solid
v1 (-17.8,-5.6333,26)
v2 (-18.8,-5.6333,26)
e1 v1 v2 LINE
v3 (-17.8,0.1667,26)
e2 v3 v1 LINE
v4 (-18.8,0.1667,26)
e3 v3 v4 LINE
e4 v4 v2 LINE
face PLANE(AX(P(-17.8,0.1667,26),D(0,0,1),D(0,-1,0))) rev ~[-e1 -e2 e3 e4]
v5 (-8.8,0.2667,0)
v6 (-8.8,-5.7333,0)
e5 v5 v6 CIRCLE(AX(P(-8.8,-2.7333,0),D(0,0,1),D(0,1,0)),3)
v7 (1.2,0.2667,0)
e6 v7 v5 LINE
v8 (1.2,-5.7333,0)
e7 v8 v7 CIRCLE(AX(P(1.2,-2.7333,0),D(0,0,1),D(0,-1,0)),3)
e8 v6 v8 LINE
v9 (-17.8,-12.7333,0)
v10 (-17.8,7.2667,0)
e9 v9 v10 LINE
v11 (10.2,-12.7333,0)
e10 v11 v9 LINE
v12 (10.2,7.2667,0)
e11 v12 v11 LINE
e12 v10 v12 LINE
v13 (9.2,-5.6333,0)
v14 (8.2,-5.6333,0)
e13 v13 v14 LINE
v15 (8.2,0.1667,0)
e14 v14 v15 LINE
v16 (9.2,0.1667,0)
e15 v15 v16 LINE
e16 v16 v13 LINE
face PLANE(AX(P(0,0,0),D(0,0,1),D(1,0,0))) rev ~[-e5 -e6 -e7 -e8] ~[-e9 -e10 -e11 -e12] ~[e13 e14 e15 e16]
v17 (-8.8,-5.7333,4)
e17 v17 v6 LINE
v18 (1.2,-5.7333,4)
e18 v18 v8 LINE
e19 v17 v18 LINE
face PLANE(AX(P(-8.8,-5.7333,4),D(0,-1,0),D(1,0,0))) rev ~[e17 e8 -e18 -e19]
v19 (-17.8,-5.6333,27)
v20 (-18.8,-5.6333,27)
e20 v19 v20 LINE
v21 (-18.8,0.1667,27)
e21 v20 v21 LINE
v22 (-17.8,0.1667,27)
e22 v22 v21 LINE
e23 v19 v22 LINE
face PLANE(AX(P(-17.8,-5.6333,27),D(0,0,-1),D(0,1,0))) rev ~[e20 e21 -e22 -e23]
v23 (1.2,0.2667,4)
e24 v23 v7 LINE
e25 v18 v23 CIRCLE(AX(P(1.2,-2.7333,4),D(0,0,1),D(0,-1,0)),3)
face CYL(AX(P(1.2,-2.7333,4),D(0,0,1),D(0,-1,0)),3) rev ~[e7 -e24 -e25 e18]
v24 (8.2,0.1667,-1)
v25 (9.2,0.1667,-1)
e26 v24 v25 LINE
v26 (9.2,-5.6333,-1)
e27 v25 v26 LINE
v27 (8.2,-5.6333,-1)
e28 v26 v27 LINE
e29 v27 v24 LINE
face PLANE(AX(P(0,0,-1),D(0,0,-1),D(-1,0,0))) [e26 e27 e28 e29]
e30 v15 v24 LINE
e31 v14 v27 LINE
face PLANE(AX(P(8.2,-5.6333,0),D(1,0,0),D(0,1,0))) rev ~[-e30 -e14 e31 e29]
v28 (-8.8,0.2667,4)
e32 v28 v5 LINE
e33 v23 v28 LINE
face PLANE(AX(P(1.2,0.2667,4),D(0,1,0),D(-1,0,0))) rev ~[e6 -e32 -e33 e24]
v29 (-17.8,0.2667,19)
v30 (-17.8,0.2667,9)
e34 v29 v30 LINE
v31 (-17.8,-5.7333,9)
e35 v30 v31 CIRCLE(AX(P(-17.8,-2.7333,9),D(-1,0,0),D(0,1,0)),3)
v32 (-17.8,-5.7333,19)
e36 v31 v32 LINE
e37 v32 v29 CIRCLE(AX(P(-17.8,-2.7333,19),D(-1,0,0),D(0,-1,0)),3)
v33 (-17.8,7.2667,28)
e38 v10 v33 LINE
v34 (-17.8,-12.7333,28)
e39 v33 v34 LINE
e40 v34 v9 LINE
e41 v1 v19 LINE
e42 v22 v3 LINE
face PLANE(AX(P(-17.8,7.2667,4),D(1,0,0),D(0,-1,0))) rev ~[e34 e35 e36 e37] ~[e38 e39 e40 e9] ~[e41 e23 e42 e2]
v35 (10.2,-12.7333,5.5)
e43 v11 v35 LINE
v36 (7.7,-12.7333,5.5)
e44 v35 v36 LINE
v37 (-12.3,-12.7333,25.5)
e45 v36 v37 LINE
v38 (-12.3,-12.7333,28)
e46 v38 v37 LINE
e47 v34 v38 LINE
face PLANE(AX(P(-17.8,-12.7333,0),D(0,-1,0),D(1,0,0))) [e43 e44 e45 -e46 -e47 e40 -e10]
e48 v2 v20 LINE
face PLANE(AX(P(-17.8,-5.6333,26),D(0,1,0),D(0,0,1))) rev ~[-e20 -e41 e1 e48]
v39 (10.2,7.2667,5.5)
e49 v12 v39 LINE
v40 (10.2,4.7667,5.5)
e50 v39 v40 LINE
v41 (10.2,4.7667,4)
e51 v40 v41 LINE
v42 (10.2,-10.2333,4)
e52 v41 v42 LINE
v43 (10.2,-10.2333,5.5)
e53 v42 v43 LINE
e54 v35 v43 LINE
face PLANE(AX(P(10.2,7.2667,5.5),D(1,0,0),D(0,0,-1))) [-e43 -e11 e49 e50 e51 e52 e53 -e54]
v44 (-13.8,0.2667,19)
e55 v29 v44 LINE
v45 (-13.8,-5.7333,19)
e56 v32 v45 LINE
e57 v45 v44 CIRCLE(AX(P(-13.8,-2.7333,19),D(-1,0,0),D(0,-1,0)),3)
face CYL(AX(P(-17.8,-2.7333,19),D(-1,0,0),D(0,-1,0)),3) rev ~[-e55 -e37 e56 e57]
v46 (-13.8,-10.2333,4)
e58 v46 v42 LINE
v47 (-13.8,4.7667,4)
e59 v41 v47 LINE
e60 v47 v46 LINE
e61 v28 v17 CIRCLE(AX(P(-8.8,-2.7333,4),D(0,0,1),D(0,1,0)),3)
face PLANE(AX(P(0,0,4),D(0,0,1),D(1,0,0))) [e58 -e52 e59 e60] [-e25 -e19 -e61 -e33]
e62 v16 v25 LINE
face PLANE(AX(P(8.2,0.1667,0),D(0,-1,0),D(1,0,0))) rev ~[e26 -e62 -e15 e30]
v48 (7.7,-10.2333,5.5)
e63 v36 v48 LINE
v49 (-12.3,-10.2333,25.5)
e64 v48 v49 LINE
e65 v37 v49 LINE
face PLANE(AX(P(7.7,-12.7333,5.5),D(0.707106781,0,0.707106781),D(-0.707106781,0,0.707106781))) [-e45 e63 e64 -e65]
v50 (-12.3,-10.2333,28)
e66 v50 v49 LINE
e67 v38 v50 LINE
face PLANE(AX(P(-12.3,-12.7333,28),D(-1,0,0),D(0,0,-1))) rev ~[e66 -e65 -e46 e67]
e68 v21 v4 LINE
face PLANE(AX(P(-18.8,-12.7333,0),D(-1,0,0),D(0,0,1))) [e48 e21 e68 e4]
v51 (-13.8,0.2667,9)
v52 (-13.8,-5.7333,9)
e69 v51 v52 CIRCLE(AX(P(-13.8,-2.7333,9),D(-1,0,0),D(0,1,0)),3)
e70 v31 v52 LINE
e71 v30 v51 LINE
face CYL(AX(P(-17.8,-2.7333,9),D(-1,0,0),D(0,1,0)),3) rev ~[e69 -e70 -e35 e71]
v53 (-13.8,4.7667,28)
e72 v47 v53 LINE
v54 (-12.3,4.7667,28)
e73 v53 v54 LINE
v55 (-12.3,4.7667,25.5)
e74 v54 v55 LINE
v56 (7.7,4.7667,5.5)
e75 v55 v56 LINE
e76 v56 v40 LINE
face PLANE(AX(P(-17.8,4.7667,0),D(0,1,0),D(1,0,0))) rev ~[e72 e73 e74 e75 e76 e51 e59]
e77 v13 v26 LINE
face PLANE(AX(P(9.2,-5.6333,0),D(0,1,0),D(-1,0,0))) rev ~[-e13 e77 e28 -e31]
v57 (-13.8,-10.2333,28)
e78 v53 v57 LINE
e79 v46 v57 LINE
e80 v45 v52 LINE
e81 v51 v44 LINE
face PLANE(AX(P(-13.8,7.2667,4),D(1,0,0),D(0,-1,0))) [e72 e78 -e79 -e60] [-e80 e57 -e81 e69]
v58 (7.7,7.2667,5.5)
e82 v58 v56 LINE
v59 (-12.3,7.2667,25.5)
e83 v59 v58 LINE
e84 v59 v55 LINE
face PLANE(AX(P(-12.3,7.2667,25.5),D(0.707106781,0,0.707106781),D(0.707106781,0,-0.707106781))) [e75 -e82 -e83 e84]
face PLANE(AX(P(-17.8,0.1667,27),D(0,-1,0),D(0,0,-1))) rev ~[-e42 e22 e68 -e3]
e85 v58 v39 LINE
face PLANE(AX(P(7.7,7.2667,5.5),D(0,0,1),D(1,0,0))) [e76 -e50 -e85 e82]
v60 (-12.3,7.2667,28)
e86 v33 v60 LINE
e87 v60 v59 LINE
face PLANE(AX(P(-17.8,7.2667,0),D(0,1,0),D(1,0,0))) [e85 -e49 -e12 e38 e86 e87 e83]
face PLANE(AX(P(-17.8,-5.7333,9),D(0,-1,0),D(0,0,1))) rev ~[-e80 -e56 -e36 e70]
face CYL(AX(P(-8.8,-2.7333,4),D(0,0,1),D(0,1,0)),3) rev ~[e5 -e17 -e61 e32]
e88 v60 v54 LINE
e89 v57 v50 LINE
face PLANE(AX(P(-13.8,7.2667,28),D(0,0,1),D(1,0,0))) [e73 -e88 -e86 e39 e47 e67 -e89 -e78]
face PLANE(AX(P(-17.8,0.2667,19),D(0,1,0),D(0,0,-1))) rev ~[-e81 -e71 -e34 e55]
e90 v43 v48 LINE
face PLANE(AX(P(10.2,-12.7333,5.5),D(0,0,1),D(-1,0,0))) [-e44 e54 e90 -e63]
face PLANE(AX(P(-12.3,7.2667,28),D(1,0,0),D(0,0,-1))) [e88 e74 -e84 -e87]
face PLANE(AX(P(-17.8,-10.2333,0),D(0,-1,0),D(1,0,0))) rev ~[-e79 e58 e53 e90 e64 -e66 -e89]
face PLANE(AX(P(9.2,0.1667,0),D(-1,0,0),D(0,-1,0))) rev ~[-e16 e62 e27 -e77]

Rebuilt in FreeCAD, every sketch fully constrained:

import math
import FreeCAD as App
import Part
import Sketcher
from FreeCAD import Vector

doc = App.newDocument("Part")
body = doc.addObject("PartDesign::Body", "Body")

# Sketch on XY plane
sketch1 = doc.addObject("Sketcher::SketchObject", "Sketch")
body.addObject(sketch1)
sketch1.AttachmentSupport = (doc.XY_Plane, [""])
sketch1.MapMode = "FlatFace"
sketch1.addGeometry([
    Part.LineSegment(Vector(10, 7, 0), Vector(-18, 7, 0)),
    Part.LineSegment(Vector(-18, 7, 0), Vector(-18, -13, 0)),
    Part.LineSegment(Vector(-18, -13, 0), Vector(10, -13, 0)),
    Part.LineSegment(Vector(10, -13, 0), Vector(10, 7, 0)),
], False)
sketch1.addConstraint([
    Sketcher.Constraint("Coincident", 0, 2, 1, 1),
    Sketcher.Constraint("Coincident", 1, 2, 2, 1),
    Sketcher.Constraint("Coincident", 2, 2, 3, 1),
    Sketcher.Constraint("Coincident", 3, 2, 0, 1),
    Sketcher.Constraint("Horizontal", 0),
    Sketcher.Constraint("Vertical", 1),
    Sketcher.Constraint("Horizontal", 2),
    Sketcher.Constraint("Vertical", 3),
    Sketcher.Constraint("DistanceX", 0, 2, 0, 1, 28.0),
    Sketcher.Constraint("DistanceY", 1, 2, 1, 1, 20.0),
    Sketcher.Constraint("DistanceX", 0, 2, -1, 1, 17.8),
    Sketcher.Constraint("DistanceY", -1, 1, 0, 2, 7.2667),
])
pad1 = doc.addObject("PartDesign::Pad", "Pad")
body.addObject(pad1)
pad1.Profile = sketch1
pad1.Length = 4

# Sketch on XY plane
sketch2 = doc.addObject("Sketcher::SketchObject", "Sketch001")
body.addObject(sketch2)
sketch2.AttachmentSupport = (doc.XY_Plane, [""])
sketch2.MapMode = "FlatFace"
sketch2.AttachmentOffset = App.Placement(Vector(0, 0, 4), App.Rotation())
sketch2.addGeometry([
    Part.ArcOfCircle(Part.Circle(Vector(-8.8, -2.7, 0), Vector(0, 0, 1), 3), math.radians(90), math.radians(270)),
    Part.LineSegment(Vector(-8.8, -5.7, 0), Vector(1.2, -5.7, 0)),
    Part.ArcOfCircle(Part.Circle(Vector(1.2, -2.7, 0), Vector(0, 0, 1), 3), math.radians(-90), math.radians(90)),
    Part.LineSegment(Vector(1.2, 0.3, 0), Vector(-8.8, 0.3, 0)),
], False)
sketch2.addConstraint([
    Sketcher.Constraint("Tangent", 0, 2, 1, 1),
    Sketcher.Constraint("Tangent", 1, 2, 2, 1),
    Sketcher.Constraint("Tangent", 2, 2, 3, 1),
    Sketcher.Constraint("Tangent", 3, 2, 0, 1),
    Sketcher.Constraint("Horizontal", 1),
    Sketcher.Constraint("Horizontal", 3),
    Sketcher.Constraint("Radius", 0, 3.0),
    Sketcher.Constraint("DistanceX", 1, 1, 1, 2, 10.0),
    Sketcher.Constraint("DistanceX", 0, 3, -1, 1, 8.8),
    Sketcher.Constraint("DistanceY", 0, 3, -1, 1, 2.7333),
])
pocket1 = doc.addObject("PartDesign::Pocket", "Pocket")
body.addObject(pocket1)
pocket1.Profile = sketch2
pocket1.Length = 30

# Sketch on XY plane
sketch3 = doc.addObject("Sketcher::SketchObject", "Sketch002")
body.addObject(sketch3)
sketch3.AttachmentSupport = (doc.XY_Plane, [""])
sketch3.MapMode = "FlatFace"
sketch3.AttachmentOffset = App.Placement(Vector(0, 0, 4), App.Rotation())
sketch3.addGeometry([
    Part.LineSegment(Vector(-13.8, -12.7, 0), Vector(-13.8, 7.3, 0)),
    Part.LineSegment(Vector(-13.8, 7.3, 0), Vector(-17.8, 7.3, 0)),
    Part.LineSegment(Vector(-17.8, 7.3, 0), Vector(-17.8, -12.7, 0)),
    Part.LineSegment(Vector(-17.8, -12.7, 0), Vector(-13.8, -12.7, 0)),
], False)
sketch3.addConstraint([
    Sketcher.Constraint("Coincident", 0, 2, 1, 1),
    Sketcher.Constraint("Coincident", 1, 2, 2, 1),
    Sketcher.Constraint("Coincident", 2, 2, 3, 1),
    Sketcher.Constraint("Coincident", 3, 2, 0, 1),
    Sketcher.Constraint("Vertical", 0),
    Sketcher.Constraint("Horizontal", 1),
    Sketcher.Constraint("Vertical", 2),
    Sketcher.Constraint("Horizontal", 3),
    Sketcher.Constraint("DistanceX", 1, 2, 1, 1, 4.0),
    Sketcher.Constraint("DistanceY", 0, 1, 0, 2, 20.0),
    Sketcher.Constraint("DistanceX", 0, 2, -1, 1, 13.8),
    Sketcher.Constraint("DistanceY", -1, 1, 0, 2, 7.2667),
])
pad2 = doc.addObject("PartDesign::Pad", "Pad001")
body.addObject(pad2)
pad2.Profile = sketch3
pad2.Length = 24

# Sketch on YZ plane
sketch4 = doc.addObject("Sketcher::SketchObject", "Sketch003")
body.addObject(sketch4)
sketch4.AttachmentSupport = (doc.YZ_Plane, [""])
sketch4.MapMode = "FlatFace"
sketch4.AttachmentOffset = App.Placement(Vector(0, 0, -17.8), App.Rotation())
sketch4.addGeometry([
    Part.ArcOfCircle(Part.Circle(Vector(-2.7, 9, 0), Vector(0, 0, 1), 3), math.radians(180), math.radians(360)),
    Part.LineSegment(Vector(-5.7, 9, 0), Vector(-5.7, 19, 0)),
    Part.ArcOfCircle(Part.Circle(Vector(-2.7, 19, 0), Vector(0, 0, 1), 3), math.radians(0), math.radians(180)),
    Part.LineSegment(Vector(0.3, 19, 0), Vector(0.3, 9, 0)),
], False)
sketch4.addConstraint([
    Sketcher.Constraint("Tangent", 0, 1, 1, 1),
    Sketcher.Constraint("Tangent", 1, 2, 2, 2),
    Sketcher.Constraint("Tangent", 2, 1, 3, 1),
    Sketcher.Constraint("Tangent", 3, 2, 0, 2),
    Sketcher.Constraint("Vertical", 1),
    Sketcher.Constraint("Vertical", 3),
    Sketcher.Constraint("Radius", 0, 3.0),
    Sketcher.Constraint("DistanceY", 1, 1, 1, 2, 10.0),
    Sketcher.Constraint("DistanceY", -1, 1, 0, 3, 9.0),
    Sketcher.Constraint("DistanceX", 0, 3, -1, 1, 2.7333),
])
pocket2 = doc.addObject("PartDesign::Pocket", "Pocket001")
body.addObject(pocket2)
pocket2.Profile = sketch4
pocket2.Length = 24
pocket2.Reversed = True

# Sketch on YZ plane
sketch5 = doc.addObject("Sketcher::SketchObject", "Sketch004")
body.addObject(sketch5)
sketch5.AttachmentSupport = (doc.YZ_Plane, [""])
sketch5.MapMode = "FlatFace"
sketch5.AttachmentOffset = App.Placement(Vector(0, 0, -17.8), App.Rotation())
sketch5.addGeometry([
    Part.LineSegment(Vector(-5.6, 27, 0), Vector(0.2, 27, 0)),
    Part.LineSegment(Vector(0.2, 27, 0), Vector(0.2, 26, 0)),
    Part.LineSegment(Vector(0.2, 26, 0), Vector(-5.6, 26, 0)),
    Part.LineSegment(Vector(-5.6, 26, 0), Vector(-5.6, 27, 0)),
], False)
sketch5.addConstraint([
    Sketcher.Constraint("Coincident", 0, 2, 1, 1),
    Sketcher.Constraint("Coincident", 1, 2, 2, 1),
    Sketcher.Constraint("Coincident", 2, 2, 3, 1),
    Sketcher.Constraint("Coincident", 3, 2, 0, 1),
    Sketcher.Constraint("Horizontal", 0),
    Sketcher.Constraint("Vertical", 1),
    Sketcher.Constraint("Horizontal", 2),
    Sketcher.Constraint("Vertical", 3),
    Sketcher.Constraint("DistanceY", 1, 2, 1, 1, 1.0),
    Sketcher.Constraint("DistanceX", 0, 1, 0, 2, 5.8),
    Sketcher.Constraint("DistanceY", -1, 1, 0, 2, 27.0),
    Sketcher.Constraint("DistanceX", -1, 1, 0, 2, 0.1667),
])
pad3 = doc.addObject("PartDesign::Pad", "Pad002")
body.addObject(pad3)
pad3.Profile = sketch5
pad3.Length = 1
pad3.Reversed = True

# Sketch on XY plane
sketch6 = doc.addObject("Sketcher::SketchObject", "Sketch005")
body.addObject(sketch6)
sketch6.AttachmentSupport = (doc.XY_Plane, [""])
sketch6.MapMode = "FlatFace"
sketch6.addGeometry([
    Part.LineSegment(Vector(9.2, 0.2, 0), Vector(9.2, -5.6, 0)),
    Part.LineSegment(Vector(9.2, -5.6, 0), Vector(8.2, -5.6, 0)),
    Part.LineSegment(Vector(8.2, -5.6, 0), Vector(8.2, 0.2, 0)),
    Part.LineSegment(Vector(8.2, 0.2, 0), Vector(9.2, 0.2, 0)),
], False)
sketch6.addConstraint([
    Sketcher.Constraint("Coincident", 0, 2, 1, 1),
    Sketcher.Constraint("Coincident", 1, 2, 2, 1),
    Sketcher.Constraint("Coincident", 2, 2, 3, 1),
    Sketcher.Constraint("Coincident", 3, 2, 0, 1),
    Sketcher.Constraint("Vertical", 0),
    Sketcher.Constraint("Horizontal", 1),
    Sketcher.Constraint("Vertical", 2),
    Sketcher.Constraint("Horizontal", 3),
    Sketcher.Constraint("DistanceX", 1, 2, 1, 1, 1.0),
    Sketcher.Constraint("DistanceY", 0, 2, 0, 1, 5.8),
    Sketcher.Constraint("DistanceX", -1, 1, 0, 2, 9.2),
    Sketcher.Constraint("DistanceY", 0, 2, -1, 1, 5.6333),
])
pad4 = doc.addObject("PartDesign::Pad", "Pad003")
body.addObject(pad4)
pad4.Profile = sketch6
pad4.Length = 1
pad4.Reversed = True

# Sketch on XZ plane
sketch7 = doc.addObject("Sketcher::SketchObject", "Sketch006")
body.addObject(sketch7)
sketch7.AttachmentSupport = (doc.XZ_Plane, [""])
sketch7.MapMode = "FlatFace"
sketch7.AttachmentOffset = App.Placement(Vector(0, 0, 12.7333), App.Rotation())
sketch7.addGeometry([
    Part.LineSegment(Vector(-13.8, 4, 0), Vector(10.2, 4, 0)),  # 0
    Part.LineSegment(Vector(10.2, 4, 0), Vector(10.2, 5.5, 0)),  # 1
    Part.LineSegment(Vector(10.2, 5.5, 0), Vector(7.7, 5.5, 0)),  # 2
    Part.LineSegment(Vector(7.7, 5.5, 0), Vector(-12.3, 25.5, 0)),  # 3
    Part.LineSegment(Vector(-12.3, 25.5, 0), Vector(-12.3, 28, 0)),  # 4
    Part.LineSegment(Vector(-12.3, 28, 0), Vector(-13.8, 28, 0)),  # 5
    Part.LineSegment(Vector(-13.8, 28, 0), Vector(-13.8, 4, 0)),  # 6
], False)
sketch7.addConstraint([
    Sketcher.Constraint("Coincident", 0, 2, 1, 1),
    Sketcher.Constraint("Coincident", 1, 2, 2, 1),
    Sketcher.Constraint("Coincident", 2, 2, 3, 1),
    Sketcher.Constraint("Coincident", 3, 2, 4, 1),
    Sketcher.Constraint("Coincident", 4, 2, 5, 1),
    Sketcher.Constraint("Coincident", 5, 2, 6, 1),
    Sketcher.Constraint("Coincident", 6, 2, 0, 1),
    Sketcher.Constraint("Horizontal", 0),
    Sketcher.Constraint("Vertical", 1),
    Sketcher.Constraint("Horizontal", 2),
    Sketcher.Constraint("Vertical", 4),
    Sketcher.Constraint("Horizontal", 5),
    Sketcher.Constraint("Vertical", 6),
    Sketcher.Constraint("Equal", 5, 1),
    Sketcher.Constraint("Equal", 2, 4),
    Sketcher.Constraint("Equal", 0, 6),
    Sketcher.Constraint("DistanceX", 2, 2, 2, 1, 2.5),
    Sketcher.Constraint("DistanceX", 5, 2, 5, 1, 1.5),
    Sketcher.Constraint("DistanceX", 0, 1, 0, 2, 24.0),
    Sketcher.Constraint("DistanceY", -1, 1, 0, 2, 4.0),
    Sketcher.Constraint("DistanceX", -1, 1, 0, 2, 10.2),
])
pad5 = doc.addObject("PartDesign::Pad", "Pad004")
body.addObject(pad5)
pad5.Profile = sketch7
pad5.Length = 2.5
pad5.Reversed = True

# Sketch on XZ plane
sketch8 = doc.addObject("Sketcher::SketchObject", "Sketch007")
body.addObject(sketch8)
sketch8.AttachmentSupport = (doc.XZ_Plane, [""])
sketch8.MapMode = "FlatFace"
sketch8.AttachmentOffset = App.Placement(Vector(0, 0, -7.2667), App.Rotation())
sketch8.addGeometry([
    Part.LineSegment(Vector(10.2, 5.5, 0), Vector(10.2, 4, 0)),  # 0
    Part.LineSegment(Vector(10.2, 4, 0), Vector(-13.8, 4, 0)),  # 1
    Part.LineSegment(Vector(-13.8, 4, 0), Vector(-13.8, 28, 0)),  # 2
    Part.LineSegment(Vector(-13.8, 28, 0), Vector(-12.3, 28, 0)),  # 3
    Part.LineSegment(Vector(-12.3, 28, 0), Vector(-12.3, 25.5, 0)),  # 4
    Part.LineSegment(Vector(-12.3, 25.5, 0), Vector(7.7, 5.5, 0)),  # 5
    Part.LineSegment(Vector(7.7, 5.5, 0), Vector(10.2, 5.5, 0)),  # 6
], False)
sketch8.addConstraint([
    Sketcher.Constraint("Coincident", 0, 2, 1, 1),
    Sketcher.Constraint("Coincident", 1, 2, 2, 1),
    Sketcher.Constraint("Coincident", 2, 2, 3, 1),
    Sketcher.Constraint("Coincident", 3, 2, 4, 1),
    Sketcher.Constraint("Coincident", 4, 2, 5, 1),
    Sketcher.Constraint("Coincident", 5, 2, 6, 1),
    Sketcher.Constraint("Coincident", 6, 2, 0, 1),
    Sketcher.Constraint("Vertical", 0),
    Sketcher.Constraint("Horizontal", 1),
    Sketcher.Constraint("Vertical", 2),
    Sketcher.Constraint("Horizontal", 3),
    Sketcher.Constraint("Vertical", 4),
    Sketcher.Constraint("Horizontal", 6),
    Sketcher.Constraint("Equal", 3, 0),
    Sketcher.Constraint("Equal", 1, 2),
    Sketcher.Constraint("Equal", 6, 4),
    Sketcher.Constraint("DistanceX", 1, 2, 1, 1, 24.0),
    Sketcher.Constraint("DistanceX", 3, 1, 3, 2, 1.5),
    Sketcher.Constraint("DistanceX", 6, 1, 6, 2, 2.5),
    Sketcher.Constraint("DistanceY", -1, 1, 0, 2, 4.0),
    Sketcher.Constraint("DistanceX", -1, 1, 0, 2, 10.2),
])
pad6 = doc.addObject("PartDesign::Pad", "Pad005")
body.addObject(pad6)
pad6.Profile = sketch8
pad6.Length = 2.5

doc.recompute()
